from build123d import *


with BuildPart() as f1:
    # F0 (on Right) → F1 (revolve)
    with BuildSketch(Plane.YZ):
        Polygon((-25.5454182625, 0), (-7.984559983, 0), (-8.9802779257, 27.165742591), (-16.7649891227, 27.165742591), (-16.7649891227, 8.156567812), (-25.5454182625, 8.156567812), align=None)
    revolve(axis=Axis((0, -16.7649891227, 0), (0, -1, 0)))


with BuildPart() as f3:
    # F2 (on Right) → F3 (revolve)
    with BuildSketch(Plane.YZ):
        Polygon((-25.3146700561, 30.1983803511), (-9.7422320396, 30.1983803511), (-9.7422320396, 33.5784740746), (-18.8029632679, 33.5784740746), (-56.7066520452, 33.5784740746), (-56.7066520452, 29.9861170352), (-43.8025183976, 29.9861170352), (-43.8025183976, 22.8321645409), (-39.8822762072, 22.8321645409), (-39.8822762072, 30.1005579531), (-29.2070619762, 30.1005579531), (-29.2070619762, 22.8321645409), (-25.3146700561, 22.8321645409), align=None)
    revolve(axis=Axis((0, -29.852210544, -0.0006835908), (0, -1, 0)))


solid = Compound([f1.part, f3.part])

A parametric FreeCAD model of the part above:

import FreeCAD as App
import Part
import Sketcher

V = App.Vector

doc = App.newDocument("Part")
params = doc.addObject("Spreadsheet::Sheet", "Params")
for row, (alias, value) in enumerate([
    ("revolution_angle", "360 deg"),
    ("revolution2_angle", "360 deg"),
], start=1):
    params.set(f"A{row}", alias)
    params.set(f"B{row}", "=" + value)
    params.setAlias(f"B{row}", alias)

body = doc.addObject("PartDesign::Body", "Body")

sketch1 = doc.addObject("Sketcher::SketchObject", "Sketch")
body.addObject(sketch1)
sketch1.AttachmentSupport = (doc.YZ_Plane, [""])
sketch1.MapMode = "FlatFace"
sketch1.addGeometry([
    Part.LineSegment(V(-26, 0, 0), V(-8, 0, 0)),
    Part.LineSegment(V(-8, 0, 0), V(-9, 27, 0)),
    Part.LineSegment(V(-9, 27, 0), V(-17, 27, 0)),
    Part.LineSegment(V(-17, 27, 0), V(-17, 8, 0)),
    Part.LineSegment(V(-17, 8, 0), V(-26, 8, 0)),
    Part.LineSegment(V(-26, 8, 0), V(-26, 0, 0)),
], False)
sketch1.addConstraint([
    Sketcher.Constraint("Coincident", 0, 2, 1, 1),
    Sketcher.Constraint("Coincident", 1, 2, 2, 1),
    Sketcher.Constraint("Coincident", 2, 2, 3, 1),
    Sketcher.Constraint("Coincident", 3, 2, 4, 1),
    Sketcher.Constraint("Coincident", 4, 2, 5, 1),
    Sketcher.Constraint("Coincident", 5, 2, 0, 1),
    Sketcher.Constraint("Horizontal", 0),
    Sketcher.Constraint("Horizontal", 2),
    Sketcher.Constraint("Vertical", 3),
    Sketcher.Constraint("Horizontal", 4),
    Sketcher.Constraint("Vertical", 5),
    Sketcher.Constraint("PointOnObject", 0, 2, -1),
    Sketcher.Constraint("DistanceX", 0, 1, 0, 2, 17.560858),
    Sketcher.Constraint("DistanceX", 2, 2, 2, 1, 7.784711),
    Sketcher.Constraint("DistanceX", 4, 2, 4, 1, 8.780429),
    Sketcher.Constraint("DistanceY", 3, 2, 3, 1, 19.009175),
    Sketcher.Constraint("DistanceY", 5, 2, 5, 1, 8.156568),
    Sketcher.Constraint("DistanceX", 0, 2, -1, 1, 7.98456),
])
revolution = doc.addObject("PartDesign::Revolution", "Revolution")
body.addObject(revolution)
revolution.Profile = sketch1
revolution.ReferenceAxis = (sketch1, ["H_Axis"])
revolution.setExpression("Angle", "Params.revolution_angle")
body2 = doc.addObject("PartDesign::Body", "Body001")

sketch2 = doc.addObject("Sketcher::SketchObject", "Sketch001")
body2.addObject(sketch2)
sketch2.AttachmentSupport = (doc.getObject("YZ_Plane001"), [""])
sketch2.MapMode = "FlatFace"
sketch2.addGeometry([
    Part.LineSegment(V(-25.3, 30.2, 0), V(-9.7, 30.2, 0)),
    Part.LineSegment(V(-9.7, 30.2, 0), V(-9.7, 33.6, 0)),
    Part.LineSegment(V(-9.7, 33.6, 0), V(-56.7, 33.6, 0)),
    Part.LineSegment(V(-56.7, 33.6, 0), V(-56.7, 30, 0)),
    Part.LineSegment(V(-56.7, 30, 0), V(-43.8, 30, 0)),
    Part.LineSegment(V(-43.8, 30, 0), V(-43.8, 22.8, 0)),
    Part.LineSegment(V(-43.8, 22.8, 0), V(-39.9, 22.8, 0)),
    Part.LineSegment(V(-39.9, 22.8, 0), V(-39.9, 30.1, 0)),
    Part.LineSegment(V(-39.9, 30.1, 0), V(-29.2, 30.1, 0)),
    Part.LineSegment(V(-29.2, 30.1, 0), V(-29.2, 22.8, 0)),
    Part.LineSegment(V(-29.2, 22.8, 0), V(-25.3, 22.8, 0)),
    Part.LineSegment(V(-25.3, 22.8, 0), V(-25.3, 30.2, 0)),
], False)
sketch2.addGeometry(Part.LineSegment(V(-9.7, 0, 0), V(-56.7, 0, 0)), True)
sketch2.addConstraint([
    Sketcher.Constraint("Coincident", 0, 2, 1, 1),
    Sketcher.Constraint("Coincident", 1, 2, 2, 1),
    Sketcher.Constraint("Coincident", 2, 2, 3, 1),
    Sketcher.Constraint("Coincident", 3, 2, 4, 1),
    Sketcher.Constraint("Coincident", 4, 2, 5, 1),
    Sketcher.Constraint("Coincident", 5, 2, 6, 1),
    Sketcher.Constraint("Coincident", 6, 2, 7, 1),
    Sketcher.Constraint("Coincident", 7, 2, 8, 1),
    Sketcher.Constraint("Coincident", 8, 2, 9, 1),
    Sketcher.Constraint("Coincident", 9, 2, 10, 1),
    Sketcher.Constraint("Coincident", 10, 2, 11, 1),
    Sketcher.Constraint("Coincident", 11, 2, 0, 1),
    Sketcher.Constraint("Horizontal", 0),
    Sketcher.Constraint("Vertical", 1),
    Sketcher.Constraint("Horizontal", 2),
    Sketcher.Constraint("Vertical", 3),
    Sketcher.Constraint("Horizontal", 4),
    Sketcher.Constraint("Vertical", 5),
    Sketcher.Constraint("Horizontal", 6),
    Sketcher.Constraint("Vertical", 7),
    Sketcher.Constraint("Horizontal", 8),
    Sketcher.Constraint("Vertical", 9),
    Sketcher.Constraint("Horizontal", 10),
    Sketcher.Constraint("Vertical", 11),
    Sketcher.Constraint("Horizontal", 12),
    Sketcher.Constraint("Horizontal", 6, 2, 9, 2),
    Sketcher.Constraint("Vertical", 1, 2, 12, 1),
    Sketcher.Constraint("Vertical", 3, 2, 12, 2),
    Sketcher.Constraint("DistanceX", 0, 1, 0, 2, 15.572438),
    Sketcher.Constraint("DistanceX", 2, 2, 2, 1, 46.96442),
    Sketcher.Constraint("DistanceX", 10, 1, 10, 2, 3.892392),
    Sketcher.Constraint("DistanceY", 12, 2, 3, 2, 29.986801),
    Sketcher.Constraint("DistanceX", 4, 1, 4, 2, 12.904134),
    Sketcher.Constraint("DistanceX", 6, 1, 6, 2, 3.920242),
    Sketcher.Constraint("DistanceY", 1, 1, 1, 2, 3.380094),
    Sketcher.Constraint("DistanceY", 3, 2, 3, 1, 3.592357),
    Sketcher.Constraint("DistanceY", 5, 2, 5, 1, 7.153952),
    Sketcher.Constraint("DistanceY", 7, 1, 7, 2, 7.268393),
    Sketcher.Constraint("DistanceY", -1, 1, 0, 2, 30.19838),
    Sketcher.Constraint("DistanceX", 4, 2, -1, 1, 43.802518),
])
revolution2 = doc.addObject("PartDesign::Revolution", "Revolution001")
body2.addObject(revolution2)
revolution2.Profile = sketch2
revolution2.ReferenceAxis = (sketch2, ["Axis0"])
revolution2.setExpression("Angle", "Params.revolution2_angle")

doc.recompute()
